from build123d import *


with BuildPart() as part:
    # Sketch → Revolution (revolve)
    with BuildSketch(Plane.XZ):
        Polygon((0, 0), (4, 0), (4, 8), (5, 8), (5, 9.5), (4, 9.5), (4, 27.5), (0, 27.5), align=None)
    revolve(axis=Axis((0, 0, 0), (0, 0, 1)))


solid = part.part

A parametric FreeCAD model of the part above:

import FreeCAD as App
import Part
import Sketcher


def add_polygon(sketch, points):
    """Adds a closed chain of lines whose ends are joined by coincident constraints."""
    first, n = sketch.GeometryCount, len(points)
    for a, b in zip(points, points[1:] + points[:1]):
        sketch.addGeometry(Part.LineSegment(App.Vector(*a, 0), App.Vector(*b, 0)), False)
    for i in range(n):
        sketch.addConstraint(Sketcher.Constraint("Coincident", first + i, 2, first + (i + 1) % n, 1))

doc = App.newDocument("Part")
body = doc.addObject("PartDesign::Body", "Body")

# Sketch on XZ plane
sketch1 = body.newObject("Sketcher::SketchObject", "Sketch")
sketch1.AttachmentSupport = (doc.getObject("XZ_Plane"), [""])
sketch1.MapMode = "FlatFace"
add_polygon(sketch1, [(0, 0), (4, 0), (4, 8), (5, 8), (5, 9.5), (4, 9.5), (4, 27.5), (0, 27.5)])  # lines 0-7
sketch1.addConstraint(Sketcher.Constraint("Horizontal", 0))
sketch1.addConstraint(Sketcher.Constraint("Vertical", 1))
sketch1.addConstraint(Sketcher.Constraint("Horizontal", 2))
sketch1.addConstraint(Sketcher.Constraint("Vertical", 3))
sketch1.addConstraint(Sketcher.Constraint("Horizontal", 4))
sketch1.addConstraint(Sketcher.Constraint("Vertical", 5))
sketch1.addConstraint(Sketcher.Constraint("Horizontal", 6))
sketch1.addConstraint(Sketcher.Constraint("Vertical", 7))
sketch1.addConstraint(Sketcher.Constraint("Coincident", 7, 2, -1, 1))
sketch1.addConstraint(Sketcher.Constraint("Vertical", 1, 2, 4, 2))
sketch1.addConstraint(Sketcher.Constraint("DistanceX", 0, 1, 0, 2, 4.0))
sketch1.addConstraint(Sketcher.Constraint("DistanceX", 2, 1, 2, 2, 1.0))
sketch1.addConstraint(Sketcher.Constraint("DistanceY", 1, 1, 1, 2, 8.0))
sketch1.addConstraint(Sketcher.Constraint("DistanceY", 5, 1, 5, 2, 18.0))
sketch1.addConstraint(Sketcher.Constraint("DistanceY", 3, 1, 3, 2, 1.5))
revolution = body.newObject("PartDesign::Revolution", "Revolution")
revolution.Profile = sketch1
revolution.ReferenceAxis = (sketch1, ["V_Axis"])
revolution.Angle = 360

doc.recompute()
